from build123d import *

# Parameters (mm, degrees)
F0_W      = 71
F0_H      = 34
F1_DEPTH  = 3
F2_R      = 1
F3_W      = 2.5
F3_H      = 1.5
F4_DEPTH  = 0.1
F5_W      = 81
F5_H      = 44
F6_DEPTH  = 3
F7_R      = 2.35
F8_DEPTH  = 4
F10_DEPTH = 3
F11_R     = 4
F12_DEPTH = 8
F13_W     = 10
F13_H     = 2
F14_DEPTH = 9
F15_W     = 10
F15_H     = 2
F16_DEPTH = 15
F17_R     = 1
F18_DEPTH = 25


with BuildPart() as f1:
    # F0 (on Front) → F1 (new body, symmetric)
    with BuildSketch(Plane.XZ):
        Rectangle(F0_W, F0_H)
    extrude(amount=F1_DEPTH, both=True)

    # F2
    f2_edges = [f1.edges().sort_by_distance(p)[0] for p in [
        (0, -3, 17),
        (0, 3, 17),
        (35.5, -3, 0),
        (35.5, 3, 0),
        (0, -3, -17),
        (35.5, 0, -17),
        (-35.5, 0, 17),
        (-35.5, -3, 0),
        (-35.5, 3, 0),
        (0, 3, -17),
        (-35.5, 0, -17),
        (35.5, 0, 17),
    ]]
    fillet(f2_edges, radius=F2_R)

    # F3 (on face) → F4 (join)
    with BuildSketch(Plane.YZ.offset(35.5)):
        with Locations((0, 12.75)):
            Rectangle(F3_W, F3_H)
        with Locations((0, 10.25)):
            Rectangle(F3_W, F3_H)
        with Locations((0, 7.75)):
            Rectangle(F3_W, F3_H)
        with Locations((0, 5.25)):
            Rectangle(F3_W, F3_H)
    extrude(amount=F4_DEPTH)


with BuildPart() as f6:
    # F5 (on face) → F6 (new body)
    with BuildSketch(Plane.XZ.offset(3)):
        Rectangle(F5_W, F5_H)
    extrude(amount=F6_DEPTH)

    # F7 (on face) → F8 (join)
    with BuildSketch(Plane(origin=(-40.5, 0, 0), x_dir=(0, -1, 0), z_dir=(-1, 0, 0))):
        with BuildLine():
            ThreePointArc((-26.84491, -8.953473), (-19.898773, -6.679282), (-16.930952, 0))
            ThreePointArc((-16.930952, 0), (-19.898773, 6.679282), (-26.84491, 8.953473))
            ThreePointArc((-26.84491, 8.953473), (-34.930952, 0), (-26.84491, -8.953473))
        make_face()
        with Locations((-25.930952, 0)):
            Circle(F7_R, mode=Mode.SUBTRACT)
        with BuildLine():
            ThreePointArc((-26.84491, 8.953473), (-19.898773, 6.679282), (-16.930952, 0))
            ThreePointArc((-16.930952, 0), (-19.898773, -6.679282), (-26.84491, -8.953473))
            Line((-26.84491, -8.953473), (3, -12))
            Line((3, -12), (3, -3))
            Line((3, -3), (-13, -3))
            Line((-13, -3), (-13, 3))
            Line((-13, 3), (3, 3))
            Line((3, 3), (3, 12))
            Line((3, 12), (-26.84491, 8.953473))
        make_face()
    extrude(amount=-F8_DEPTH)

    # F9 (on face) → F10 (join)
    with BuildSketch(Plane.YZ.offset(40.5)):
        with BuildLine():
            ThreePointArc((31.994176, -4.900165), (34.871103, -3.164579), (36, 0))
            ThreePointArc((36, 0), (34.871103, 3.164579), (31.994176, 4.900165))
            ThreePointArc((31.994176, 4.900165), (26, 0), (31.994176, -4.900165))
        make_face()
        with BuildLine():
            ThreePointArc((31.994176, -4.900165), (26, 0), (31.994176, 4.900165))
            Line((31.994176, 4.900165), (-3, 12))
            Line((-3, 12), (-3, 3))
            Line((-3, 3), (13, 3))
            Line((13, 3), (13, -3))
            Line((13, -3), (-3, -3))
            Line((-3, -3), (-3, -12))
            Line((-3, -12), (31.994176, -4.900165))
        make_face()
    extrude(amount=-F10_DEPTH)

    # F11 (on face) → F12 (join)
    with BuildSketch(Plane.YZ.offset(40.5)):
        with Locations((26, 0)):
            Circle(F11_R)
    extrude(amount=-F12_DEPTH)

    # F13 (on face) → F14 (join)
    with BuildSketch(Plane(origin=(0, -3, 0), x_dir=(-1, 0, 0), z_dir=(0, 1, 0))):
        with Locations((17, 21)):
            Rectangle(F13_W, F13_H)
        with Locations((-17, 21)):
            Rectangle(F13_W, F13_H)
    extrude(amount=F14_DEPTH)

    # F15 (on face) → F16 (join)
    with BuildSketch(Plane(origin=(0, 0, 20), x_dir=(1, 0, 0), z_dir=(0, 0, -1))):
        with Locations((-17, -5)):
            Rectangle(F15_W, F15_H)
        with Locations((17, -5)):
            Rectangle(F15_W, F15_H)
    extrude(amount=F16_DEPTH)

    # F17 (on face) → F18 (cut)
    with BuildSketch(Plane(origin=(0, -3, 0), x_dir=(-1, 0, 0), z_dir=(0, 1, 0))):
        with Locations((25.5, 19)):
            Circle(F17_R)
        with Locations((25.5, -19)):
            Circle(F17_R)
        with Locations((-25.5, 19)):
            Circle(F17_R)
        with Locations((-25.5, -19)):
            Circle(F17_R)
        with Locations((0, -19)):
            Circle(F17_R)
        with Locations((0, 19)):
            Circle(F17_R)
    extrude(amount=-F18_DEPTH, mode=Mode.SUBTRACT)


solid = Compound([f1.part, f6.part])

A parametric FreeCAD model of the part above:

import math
import FreeCAD as App
import Part
import Sketcher

V = App.Vector

doc = App.newDocument("Part")
body = doc.addObject("PartDesign::Body", "Body")

# Sketch on XZ plane
sketch1 = body.newObject("Sketcher::SketchObject", "Sketch")
sketch1.AttachmentSupport = (doc.getObject("XZ_Plane"), [""])
sketch1.MapMode = "FlatFace"
sketch1.addGeometry([
    Part.LineSegment(V(-36, 17, 0), V(-36, -17, 0)),
    Part.LineSegment(V(-36, -17, 0), V(36, -17, 0)),
    Part.LineSegment(V(36, -17, 0), V(36, 17, 0)),
    Part.LineSegment(V(36, 17, 0), V(-36, 17, 0)),
], False)
sketch1.addConstraint([
    Sketcher.Constraint("Coincident", 0, 2, 1, 1),
    Sketcher.Constraint("Coincident", 1, 2, 2, 1),
    Sketcher.Constraint("Coincident", 2, 2, 3, 1),
    Sketcher.Constraint("Coincident", 3, 2, 0, 1),
    Sketcher.Constraint("Vertical", 0),
    Sketcher.Constraint("Horizontal", 1),
    Sketcher.Constraint("Vertical", 2),
    Sketcher.Constraint("Horizontal", 3),
    Sketcher.Constraint("Symmetric", 0, 2, 2, 2, -1, 1),
    Sketcher.Constraint("DistanceX", 1, 1, 1, 2, 71.0),
    Sketcher.Constraint("DistanceY", 0, 2, 0, 1, 34.0),
])
pad1 = body.newObject("PartDesign::Pad", "Pad")
pad1.Profile = sketch1
pad1.Length = 6
pad1.Midplane = True
doc.recompute()

fillet = body.newObject("PartDesign::Fillet", "Fillet")
fillet.Base = (pad1, ["Edge1"])
fillet.UseAllEdges = True
fillet.Radius = 1

# Sketch on YZ plane
sketch2 = body.newObject("Sketcher::SketchObject", "Sketch001")
sketch2.AttachmentSupport = (doc.getObject("YZ_Plane"), [""])
sketch2.MapMode = "FlatFace"
sketch2.AttachmentOffset = App.Placement(V(0, 0, 35.5), App.Rotation())
sketch2.addGeometry([
    Part.LineSegment(V(-1.2, 13.5, 0), V(-1.2, 12, 0)),  # 0
    Part.LineSegment(V(-1.2, 12, 0), V(1.2, 12, 0)),  # 1
    Part.LineSegment(V(1.2, 12, 0), V(1.2, 13.5, 0)),  # 2
    Part.LineSegment(V(1.2, 13.5, 0), V(-1.2, 13.5, 0)),  # 3
    Part.LineSegment(V(-1.2, 11, 0), V(-1.2, 9.5, 0)),  # 4
    Part.LineSegment(V(-1.2, 9.5, 0), V(1.2, 9.5, 0)),  # 5
    Part.LineSegment(V(1.2, 9.5, 0), V(1.2, 11, 0)),  # 6
    Part.LineSegment(V(1.2, 11, 0), V(-1.2, 11, 0)),  # 7
    Part.LineSegment(V(-1.2, 8.5, 0), V(-1.2, 7, 0)),  # 8
    Part.LineSegment(V(-1.2, 7, 0), V(1.2, 7, 0)),  # 9
    Part.LineSegment(V(1.2, 7, 0), V(1.2, 8.5, 0)),  # 10
    Part.LineSegment(V(1.2, 8.5, 0), V(-1.2, 8.5, 0)),  # 11
    Part.LineSegment(V(-1.2, 6, 0), V(-1.2, 4.5, 0)),  # 12
    Part.LineSegment(V(-1.2, 4.5, 0), V(1.2, 4.5, 0)),  # 13
    Part.LineSegment(V(1.2, 4.5, 0), V(1.2, 6, 0)),  # 14
    Part.LineSegment(V(1.2, 6, 0), V(-1.2, 6, 0)),  # 15
], False)
sketch2.addConstraint([
    Sketcher.Constraint("Coincident", 0, 2, 1, 1),
    Sketcher.Constraint("Coincident", 1, 2, 2, 1),
    Sketcher.Constraint("Coincident", 2, 2, 3, 1),
    Sketcher.Constraint("Coincident", 3, 2, 0, 1),
    Sketcher.Constraint("Coincident", 4, 2, 5, 1),
    Sketcher.Constraint("Coincident", 5, 2, 6, 1),
    Sketcher.Constraint("Coincident", 6, 2, 7, 1),
    Sketcher.Constraint("Coincident", 7, 2, 4, 1),
    Sketcher.Constraint("Coincident", 8, 2, 9, 1),
    Sketcher.Constraint("Coincident", 9, 2, 10, 1),
    Sketcher.Constraint("Coincident", 10, 2, 11, 1),
    Sketcher.Constraint("Coincident", 11, 2, 8, 1),
    Sketcher.Constraint("Coincident", 12, 2, 13, 1),
    Sketcher.Constraint("Coincident", 13, 2, 14, 1),
    Sketcher.Constraint("Coincident", 14, 2, 15, 1),
    Sketcher.Constraint("Coincident", 15, 2, 12, 1),
    Sketcher.Constraint("Vertical", 0),
    Sketcher.Constraint("Horizontal", 1),
    Sketcher.Constraint("Vertical", 2),
    Sketcher.Constraint("Horizontal", 3),
    Sketcher.Constraint("Vertical", 4),
    Sketcher.Constraint("Horizontal", 5),
    Sketcher.Constraint("Vertical", 6),
    Sketcher.Constraint("Horizontal", 7),
    Sketcher.Constraint("Vertical", 8),
    Sketcher.Constraint("Horizontal", 9),
    Sketcher.Constraint("Vertical", 10),
    Sketcher.Constraint("Horizontal", 11),
    Sketcher.Constraint("Vertical", 12),
    Sketcher.Constraint("Horizontal", 13),
    Sketcher.Constraint("Vertical", 14),
    Sketcher.Constraint("Horizontal", 15),
    Sketcher.Constraint("Vertical", 3, 2, 4, 2),
    Sketcher.Constraint("Vertical", 2, 2, 5, 2),
    Sketcher.Constraint("Vertical", 7, 2, 8, 2),
    Sketcher.Constraint("Vertical", 6, 2, 9, 2),
    Sketcher.Constraint("Vertical", 11, 2, 12, 2),
    Sketcher.Constraint("Vertical", 10, 2, 13, 2),
    Sketcher.Constraint("Equal", 2, 4),
    Sketcher.Constraint("Equal", 6, 8),
    Sketcher.Constraint("Equal", 10, 12),
    Sketcher.Constraint("DistanceX", 1, 1, 1, 2, 2.5),
    Sketcher.Constraint("DistanceY", 0, 2, 0, 1, 1.5),
    Sketcher.Constraint("DistanceY", -1, 1, 0, 2, 12.0),
    Sketcher.Constraint("DistanceY", -1, 1, 6, 2, 11.0),
    Sketcher.Constraint("DistanceY", -1, 1, 8, 2, 7.0),
    Sketcher.Constraint("DistanceY", -1, 1, 14, 2, 6.0),
    Sketcher.Constraint("DistanceX", 0, 2, -1, 1, 1.25),
])
pad2 = body.newObject("PartDesign::Pad", "Pad001")
pad2.Profile = sketch2
pad2.Length = 0.1
body2 = doc.addObject("PartDesign::Body", "Body001")

# Sketch on XZ plane
sketch3 = body2.newObject("Sketcher::SketchObject", "Sketch002")
sketch3.AttachmentSupport = (doc.getObject("XZ_Plane001"), [""])
sketch3.MapMode = "FlatFace"
sketch3.AttachmentOffset = App.Placement(V(0, 0, 3), App.Rotation())
sketch3.addGeometry([
    Part.LineSegment(V(-40, 22, 0), V(-40, -22, 0)),
    Part.LineSegment(V(-40, -22, 0), V(40, -22, 0)),
    Part.LineSegment(V(40, -22, 0), V(40, 22, 0)),
    Part.LineSegment(V(40, 22, 0), V(-40, 22, 0)),
], False)
sketch3.addConstraint([
    Sketcher.Constraint("Coincident", 0, 2, 1, 1),
    Sketcher.Constraint("Coincident", 1, 2, 2, 1),
    Sketcher.Constraint("Coincident", 2, 2, 3, 1),
    Sketcher.Constraint("Coincident", 3, 2, 0, 1),
    Sketcher.Constraint("Vertical", 0),
    Sketcher.Constraint("Horizontal", 1),
    Sketcher.Constraint("Vertical", 2),
    Sketcher.Constraint("Horizontal", 3),
    Sketcher.Constraint("Symmetric", 0, 2, 2, 2, -1, 1),
    Sketcher.Constraint("DistanceX", 1, 1, 1, 2, 81.0),
    Sketcher.Constraint("DistanceY", 0, 2, 0, 1, 44.0),
])
pad3 = body2.newObject("PartDesign::Pad", "Pad002")
pad3.Profile = sketch3
pad3.Length = 3

# Sketch on YZ plane
sketch4 = body2.newObject("Sketcher::SketchObject", "Sketch003")
sketch4.AttachmentSupport = (doc.getObject("YZ_Plane001"), [""])
sketch4.MapMode = "FlatFace"
sketch4.AttachmentOffset = App.Placement(V(0, 0, -40.5), App.Rotation())
sketch4.addGeometry([
    Part.ArcOfCircle(Part.Circle(V(25.9, 0, 0), V(0, 0, 1), 9), math.radians(-84), math.radians(84)),  # 0
    Part.LineSegment(V(26.8, -9, 0), V(-3, -12, 0)),  # 1
    Part.LineSegment(V(-3, -12, 0), V(-3, -3, 0)),  # 2
    Part.LineSegment(V(-3, -3, 0), V(13, -3, 0)),  # 3
    Part.LineSegment(V(13, -3, 0), V(13, 3, 0)),  # 4
    Part.LineSegment(V(13, 3, 0), V(-3, 3, 0)),  # 5
    Part.LineSegment(V(-3, 3, 0), V(-3, 12, 0)),  # 6
    Part.LineSegment(V(-3, 12, 0), V(26.8, 9, 0)),  # 7
    Part.Circle(V(25.9, 0, 0), V(0, 0, 1), 2.4),  # 8
], False)
sketch4.addConstraint([
    Sketcher.Constraint("Tangent", 0, 1, 1, 1),
    Sketcher.Constraint("Coincident", 1, 2, 2, 1),
    Sketcher.Constraint("Coincident", 2, 2, 3, 1),
    Sketcher.Constraint("Coincident", 3, 2, 4, 1),
    Sketcher.Constraint("Coincident", 4, 2, 5, 1),
    Sketcher.Constraint("Coincident", 5, 2, 6, 1),
    Sketcher.Constraint("Coincident", 6, 2, 7, 1),
    Sketcher.Constraint("Tangent", 7, 2, 0, 2),
    Sketcher.Constraint("Vertical", 2),
    Sketcher.Constraint("Horizontal", 3),
    Sketcher.Constraint("Vertical", 4),
    Sketcher.Constraint("Horizontal", 5),
    Sketcher.Constraint("Vertical", 6),
    Sketcher.Constraint("Coincident", 8, 3, 0, 3),
    Sketcher.Constraint("Symmetric", 2, 2, 5, 2, -1),
    Sketcher.Constraint("Symmetric", 0, 1, 7, 2, -1),
    Sketcher.Constraint("Radius", 0, 9.0),
    Sketcher.Constraint("Diameter", 8, 4.7),
    Sketcher.Constraint("DistanceX", 3, 1, 3, 2, 16.0),
    Sketcher.Constraint("DistanceY", 2, 1, 2, 2, 9.0),
    Sketcher.Constraint("DistanceY", 4, 1, 4, 2, 6.0),
    Sketcher.Constraint("Distance", 1, 30.0),
    Sketcher.Constraint("DistanceX", 1, 2, -1, 1, 3.0),
])
pad4 = body2.newObject("PartDesign::Pad", "Pad003")
pad4.Profile = sketch4
pad4.Length = 4

# Sketch on YZ plane
sketch5 = body2.newObject("Sketcher::SketchObject", "Sketch004")
sketch5.AttachmentSupport = (doc.getObject("YZ_Plane001"), [""])
sketch5.MapMode = "FlatFace"
sketch5.AttachmentOffset = App.Placement(V(0, 0, 40.5), App.Rotation())
sketch5.addGeometry([
    Part.ArcOfCircle(Part.Circle(V(31, 0, 0), V(0, 0, 1), 5), math.radians(-79), math.radians(0)),  # 0
    Part.ArcOfCircle(Part.Circle(V(31, 0, 0), V(0, 0, 1), 5), math.radians(0), math.radians(79)),  # 1
    Part.LineSegment(V(32, 5, 0), V(-3, 12, 0)),  # 2
    Part.LineSegment(V(-3, 12, 0), V(-3, 3, 0)),  # 3
    Part.LineSegment(V(-3, 3, 0), V(13, 3, 0)),  # 4
    Part.LineSegment(V(13, 3, 0), V(13, -3, 0)),  # 5
    Part.LineSegment(V(13, -3, 0), V(-3, -3, 0)),  # 6
    Part.LineSegment(V(-3, -3, 0), V(-3, -12, 0)),  # 7
    Part.LineSegment(V(-3, -12, 0), V(32, -5, 0)),  # 8
], False)
sketch5.addConstraint([
    Sketcher.Constraint("Tangent", 0, 2, 1, 1),
    Sketcher.Constraint("Tangent", 1, 2, 2, 1),
    Sketcher.Constraint("Coincident", 2, 2, 3, 1),
    Sketcher.Constraint("Coincident", 3, 2, 4, 1),
    Sketcher.Constraint("Coincident", 4, 2, 5, 1),
    Sketcher.Constraint("Coincident", 5, 2, 6, 1),
    Sketcher.Constraint("Coincident", 6, 2, 7, 1),
    Sketcher.Constraint("Coincident", 7, 2, 8, 1),
    Sketcher.Constraint("Tangent", 8, 2, 0, 1),
    Sketcher.Constraint("Vertical", 3),
    Sketcher.Constraint("Horizontal", 4),
    Sketcher.Constraint("Vertical", 5),
    Sketcher.Constraint("Horizontal", 6),
    Sketcher.Constraint("Vertical", 7),
    Sketcher.Constraint("Equal", 0, 1),
    Sketcher.Constraint("Symmetric", 3, 2, 6, 2, -1),
    Sketcher.Constraint("Symmetric", 1, 2, 8, 2, -1),
    Sketcher.Constraint("PointOnObject", 0, 2, -1),
    Sketcher.Constraint("Radius", 0, 5.000001),
    Sketcher.Constraint("DistanceX", 4, 1, 4, 2, 16.0),
    Sketcher.Constraint("DistanceY", 3, 2, 3, 1, 9.0),
    Sketcher.Constraint("DistanceY", 5, 2, 5, 1, 6.0),
    Sketcher.Constraint("DistanceX", -1, 1, 0, 3, 30.999999),
    Sketcher.Constraint("DistanceX", 2, 2, -1, 1, 3.0),
])
pad5 = body2.newObject("PartDesign::Pad", "Pad004")
pad5.Profile = sketch5
pad5.Length = 3
pad5.Reversed = True

# Sketch on YZ plane
sketch6 = body2.newObject("Sketcher::SketchObject", "Sketch005")
sketch6.AttachmentSupport = (doc.getObject("YZ_Plane001"), [""])
sketch6.MapMode = "FlatFace"
sketch6.AttachmentOffset = App.Placement(V(0, 0, 40.5), App.Rotation())
sketch6.addGeometry(Part.Circle(V(26, 0, 0), V(0, 0, 1), 4), False)
sketch6.addConstraint([
    Sketcher.Constraint("PointOnObject", 0, 3, -1),
    Sketcher.Constraint("Diameter", 0, 8.0),
    Sketcher.Constraint("DistanceX", -1, 1, 0, 3, 26.0),
])
pad6 = body2.newObject("PartDesign::Pad", "Pad005")
pad6.Profile = sketch6
pad6.Length = 8
pad6.Reversed = True

# Sketch on XZ plane
sketch7 = body2.newObject("Sketcher::SketchObject", "Sketch006")
sketch7.AttachmentSupport = (doc.getObject("XZ_Plane001"), [""])
sketch7.MapMode = "FlatFace"
sketch7.AttachmentOffset = App.Placement(V(0, 0, 3), App.Rotation())
sketch7.addGeometry([
    Part.LineSegment(V(-12, 22, 0), V(-12, 20, 0)),  # 0
    Part.LineSegment(V(-12, 20, 0), V(-22, 20, 0)),  # 1
    Part.LineSegment(V(-22, 20, 0), V(-22, 22, 0)),  # 2
    Part.LineSegment(V(-22, 22, 0), V(-12, 22, 0)),  # 3
    Part.LineSegment(V(22, 22, 0), V(22, 20, 0)),  # 4
    Part.LineSegment(V(22, 20, 0), V(12, 20, 0)),  # 5
    Part.LineSegment(V(12, 20, 0), V(12, 22, 0)),  # 6
    Part.LineSegment(V(12, 22, 0), V(22, 22, 0)),  # 7
], False)
sketch7.addConstraint([
    Sketcher.Constraint("Coincident", 0, 2, 1, 1),
    Sketcher.Constraint("Coincident", 1, 2, 2, 1),
    Sketcher.Constraint("Coincident", 2, 2, 3, 1),
    Sketcher.Constraint("Coincident", 3, 2, 0, 1),
    Sketcher.Constraint("Coincident", 4, 2, 5, 1),
    Sketcher.Constraint("Coincident", 5, 2, 6, 1),
    Sketcher.Constraint("Coincident", 6, 2, 7, 1),
    Sketcher.Constraint("Coincident", 7, 2, 4, 1),
    Sketcher.Constraint("Vertical", 0),
    Sketcher.Constraint("Horizontal", 1),
    Sketcher.Constraint("Vertical", 2),
    Sketcher.Constraint("Horizontal", 3),
    Sketcher.Constraint("Vertical", 4),
    Sketcher.Constraint("Horizontal", 5),
    Sketcher.Constraint("Vertical", 6),
    Sketcher.Constraint("Horizontal", 7),
    Sketcher.Constraint("Symmetric", 1, 2, 4, 2, -2),
    Sketcher.Constraint("Symmetric", 3, 2, 6, 2, -2),
    Sketcher.Constraint("DistanceX", 1, 2, 1, 1, 10.0),
    Sketcher.Constraint("DistanceY", 0, 2, 0, 1, 2.0),
    Sketcher.Constraint("DistanceX", 0, 2, -1, 1, 12.0),
    Sketcher.Constraint("DistanceY", -1, 1, 0, 2, 20.0),
])
pad7 = body2.newObject("PartDesign::Pad", "Pad006")
pad7.Profile = sketch7
pad7.Length = 9
pad7.Reversed = True

# Sketch on XY plane
sketch8 = body2.newObject("Sketcher::SketchObject", "Sketch007")
sketch8.AttachmentSupport = (doc.getObject("XY_Plane001"), [""])
sketch8.MapMode = "FlatFace"
sketch8.AttachmentOffset = App.Placement(V(0, 0, 20), App.Rotation())
sketch8.addGeometry([
    Part.LineSegment(V(-22, 4, 0), V(-22, 6, 0)),  # 0
    Part.LineSegment(V(-22, 6, 0), V(-12, 6, 0)),  # 1
    Part.LineSegment(V(-12, 6, 0), V(-12, 4, 0)),  # 2
    Part.LineSegment(V(-12, 4, 0), V(-22, 4, 0)),  # 3
    Part.LineSegment(V(12, 4, 0), V(12, 6, 0)),  # 4
    Part.LineSegment(V(12, 6, 0), V(22, 6, 0)),  # 5
    Part.LineSegment(V(22, 6, 0), V(22, 4, 0)),  # 6
    Part.LineSegment(V(22, 4, 0), V(12, 4, 0)),  # 7
], False)
sketch8.addConstraint([
    Sketcher.Constraint("Coincident", 0, 2, 1, 1),
    Sketcher.Constraint("Coincident", 1, 2, 2, 1),
    Sketcher.Constraint("Coincident", 2, 2, 3, 1),
    Sketcher.Constraint("Coincident", 3, 2, 0, 1),
    Sketcher.Constraint("Coincident", 4, 2, 5, 1),
    Sketcher.Constraint("Coincident", 5, 2, 6, 1),
    Sketcher.Constraint("Coincident", 6, 2, 7, 1),
    Sketcher.Constraint("Coincident", 7, 2, 4, 1),
    Sketcher.Constraint("Vertical", 0),
    Sketcher.Constraint("Horizontal", 1),
    Sketcher.Constraint("Vertical", 2),
    Sketcher.Constraint("Horizontal", 3),
    Sketcher.Constraint("Vertical", 4),
    Sketcher.Constraint("Horizontal", 5),
    Sketcher.Constraint("Vertical", 6),
    Sketcher.Constraint("Horizontal", 7),
    Sketcher.Constraint("Symmetric", 1, 2, 4, 2, -2),
    Sketcher.Constraint("Symmetric", 3, 2, 6, 2, -2),
    Sketcher.Constraint("DistanceX", 1, 1, 1, 2, 10.0),
    Sketcher.Constraint("DistanceY", 0, 1, 0, 2, 2.0),
    Sketcher.Constraint("DistanceX", 0, 2, -1, 1, 22.0),
    Sketcher.Constraint("DistanceY", -1, 1, 0, 2, 6.0),
])
pad8 = body2.newObject("PartDesign::Pad", "Pad007")
pad8.Profile = sketch8
pad8.Length = 15
pad8.Reversed = True

# Sketch on XZ plane
sketch9 = body2.newObject("Sketcher::SketchObject", "Sketch008")
sketch9.AttachmentSupport = (doc.getObject("XZ_Plane001"), [""])
sketch9.MapMode = "FlatFace"
sketch9.AttachmentOffset = App.Placement(V(0, 0, 3), App.Rotation())
sketch9.addGeometry([
    Part.Circle(V(-25.5, 19, 0), V(0, 0, 1), 1),  # 0
    Part.Circle(V(-25.5, -19, 0), V(0, 0, 1), 1),  # 1
    Part.Circle(V(25.5, 19, 0), V(0, 0, 1), 1),  # 2
    Part.Circle(V(25.5, -19, 0), V(0, 0, 1), 1),  # 3
    Part.Circle(V(0, -19, 0), V(0, 0, 1), 1),  # 4
    Part.Circle(V(0, 19, 0), V(0, 0, 1), 1),  # 5
], False)
sketch9.addConstraint([
    Sketcher.Constraint("Equal", 0, 1),
    Sketcher.Constraint("Equal", 1, 2),
    Sketcher.Constraint("Equal", 2, 3),
    Sketcher.Constraint("Equal", 3, 4),
    Sketcher.Constraint("Equal", 4, 5),
    Sketcher.Constraint("Symmetric", 1, 3, 2, 3, -1, 1),
    Sketcher.Constraint("Symmetric", 0, 3, 3, 3, -1, 1),
    Sketcher.Constraint("Symmetric", 4, 3, 5, 3, -1, 1),
    Sketcher.Constraint("Symmetric", 0, 3, 2, 3, -2),
    Sketcher.Constraint("PointOnObject", 4, 3, -2),
    Sketcher.Constraint("Horizontal", 3, 3, 4, 3),
    Sketcher.Constraint("Diameter", 0, 2.0),
    Sketcher.Constraint("DistanceY", -1, 1, 0, 3, 19.0),
    Sketcher.Constraint("DistanceX", 0, 3, 2, 3, 51.0),
])
pocket1 = body2.newObject("PartDesign::Pocket", "Pocket")
pocket1.Profile = sketch9
pocket1.Length = 25
pocket1.Reversed = True

doc.recompute()
